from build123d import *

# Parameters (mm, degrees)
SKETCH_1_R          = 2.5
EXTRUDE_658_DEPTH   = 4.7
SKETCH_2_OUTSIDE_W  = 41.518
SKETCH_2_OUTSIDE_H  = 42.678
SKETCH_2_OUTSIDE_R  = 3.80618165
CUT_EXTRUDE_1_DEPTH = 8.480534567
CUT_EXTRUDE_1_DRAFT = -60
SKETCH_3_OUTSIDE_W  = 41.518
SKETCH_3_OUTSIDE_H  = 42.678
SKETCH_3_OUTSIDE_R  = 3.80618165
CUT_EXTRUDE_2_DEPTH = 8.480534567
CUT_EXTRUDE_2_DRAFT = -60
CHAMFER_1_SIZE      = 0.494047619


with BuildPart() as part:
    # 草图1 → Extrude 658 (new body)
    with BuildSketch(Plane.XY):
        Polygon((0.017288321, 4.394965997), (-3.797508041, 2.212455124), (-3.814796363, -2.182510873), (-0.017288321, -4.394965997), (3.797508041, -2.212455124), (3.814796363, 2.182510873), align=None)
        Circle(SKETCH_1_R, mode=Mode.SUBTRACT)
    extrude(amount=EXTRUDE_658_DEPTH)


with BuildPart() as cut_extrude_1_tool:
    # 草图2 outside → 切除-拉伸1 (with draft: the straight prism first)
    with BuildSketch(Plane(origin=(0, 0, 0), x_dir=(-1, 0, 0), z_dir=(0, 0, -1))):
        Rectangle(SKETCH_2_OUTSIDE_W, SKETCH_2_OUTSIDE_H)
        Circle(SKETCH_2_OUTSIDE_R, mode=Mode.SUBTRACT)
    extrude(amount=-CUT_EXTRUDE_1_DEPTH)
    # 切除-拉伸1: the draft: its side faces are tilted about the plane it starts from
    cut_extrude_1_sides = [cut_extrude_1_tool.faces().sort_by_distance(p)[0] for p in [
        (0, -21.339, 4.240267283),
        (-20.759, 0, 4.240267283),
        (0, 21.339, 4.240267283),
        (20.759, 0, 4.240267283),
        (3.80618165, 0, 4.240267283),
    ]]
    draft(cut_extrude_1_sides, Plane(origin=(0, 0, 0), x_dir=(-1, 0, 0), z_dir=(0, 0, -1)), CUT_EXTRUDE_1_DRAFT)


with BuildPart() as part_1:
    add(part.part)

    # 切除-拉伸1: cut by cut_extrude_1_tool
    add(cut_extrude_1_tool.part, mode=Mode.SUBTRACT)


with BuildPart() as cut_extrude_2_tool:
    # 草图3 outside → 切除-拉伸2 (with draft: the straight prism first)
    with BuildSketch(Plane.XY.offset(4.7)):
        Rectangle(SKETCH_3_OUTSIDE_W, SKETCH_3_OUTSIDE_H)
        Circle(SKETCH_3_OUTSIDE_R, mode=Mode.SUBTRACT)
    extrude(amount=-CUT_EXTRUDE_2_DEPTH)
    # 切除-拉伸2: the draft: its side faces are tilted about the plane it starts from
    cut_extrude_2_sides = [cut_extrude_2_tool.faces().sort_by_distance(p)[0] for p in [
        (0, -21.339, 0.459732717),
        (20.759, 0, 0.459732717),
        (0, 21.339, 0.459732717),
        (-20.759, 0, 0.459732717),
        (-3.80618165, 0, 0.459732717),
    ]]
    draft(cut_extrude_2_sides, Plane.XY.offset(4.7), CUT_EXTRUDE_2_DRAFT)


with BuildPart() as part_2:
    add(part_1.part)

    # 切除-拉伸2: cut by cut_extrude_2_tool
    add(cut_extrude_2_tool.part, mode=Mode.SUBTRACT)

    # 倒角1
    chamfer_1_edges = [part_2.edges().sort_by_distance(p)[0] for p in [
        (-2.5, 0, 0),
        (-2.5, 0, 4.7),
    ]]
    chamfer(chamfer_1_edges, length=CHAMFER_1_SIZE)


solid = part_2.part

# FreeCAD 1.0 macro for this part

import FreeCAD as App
import Part
import Sketcher
from FreeCAD import Vector


def edges_at(feature, points):
    """Names of the edges that pass closest to the given points."""
    edges = feature.Shape.Edges
    near = lambda p: min(range(len(edges)), key=lambda i: edges[i].distToShape(Part.Vertex(*p))[0])
    return sorted({f"Edge{near(p) + 1}" for p in points})


def faces_at(feature, points):
    """Names of the faces that lie closest to the given points."""
    faces = feature.Shape.Faces
    near = lambda p: min(range(len(faces)), key=lambda i: faces[i].distToShape(Part.Vertex(*p))[0])
    return sorted({f"Face{near(p) + 1}" for p in points})

doc = App.newDocument("Part")
body = doc.addObject("PartDesign::Body", "Body")

sketch1 = body.newObject("Sketcher::SketchObject", "Sketch")
sketch1.AttachmentSupport = (doc.getObject("XY_Plane"), [""])
sketch1.MapMode = "FlatFace"
sketch1.addGeometry(Part.LineSegment(Vector(0, 4.4, 0), Vector(-3.8, 2.2, 0)), False)
sketch1.addGeometry(Part.LineSegment(Vector(-3.8, 2.2, 0), Vector(-3.8, -2.2, 0)), False)
sketch1.addGeometry(Part.LineSegment(Vector(-3.8, -2.2, 0), Vector(0, -4.4, 0)), False)
sketch1.addGeometry(Part.LineSegment(Vector(0, -4.4, 0), Vector(3.8, -2.2, 0)), False)
sketch1.addGeometry(Part.LineSegment(Vector(3.8, -2.2, 0), Vector(3.8, 2.2, 0)), False)
sketch1.addGeometry(Part.LineSegment(Vector(3.8, 2.2, 0), Vector(0, 4.4, 0)), False)
sketch1.addGeometry(Part.Circle(Vector(0, 0, 0), Vector(0, 0, 1), 2.5), False)
sketch1.addConstraint(Sketcher.Constraint("Coincident", 0, 2, 1, 1))
sketch1.addConstraint(Sketcher.Constraint("Coincident", 1, 2, 2, 1))
sketch1.addConstraint(Sketcher.Constraint("Coincident", 2, 2, 3, 1))
sketch1.addConstraint(Sketcher.Constraint("Coincident", 3, 2, 4, 1))
sketch1.addConstraint(Sketcher.Constraint("Coincident", 4, 2, 5, 1))
sketch1.addConstraint(Sketcher.Constraint("Coincident", 5, 2, 0, 1))
sketch1.addConstraint(Sketcher.Constraint("Coincident", 6, 3, -1, 1))
sketch1.addConstraint(Sketcher.Constraint("Symmetric", 0, 2, 3, 2, -1, 1))
sketch1.addConstraint(Sketcher.Constraint("Symmetric", 1, 2, 4, 2, -1, 1))
sketch1.addConstraint(Sketcher.Constraint("Symmetric", 2, 2, 5, 2, -1, 1))
sketch1.addConstraint(Sketcher.Constraint("Equal", 0, 1))
sketch1.addConstraint(Sketcher.Constraint("Equal", 1, 2))
sketch1.addConstraint(Sketcher.Constraint("Diameter", 6, 5.0))
sketch1.addConstraint(Sketcher.Constraint("Distance", 0, 4.395))
sketch1.addConstraint(Sketcher.Constraint("DistanceX", 0, 2, -1, 1, 3.797508))
sketch1.addConstraint(Sketcher.Constraint("DistanceY", 1, 2, -1, 1, 2.182511))
sketch1.addConstraint(Sketcher.Constraint("DistanceX", 2, 2, -1, 1, 0.017288))
pad1 = body.newObject("PartDesign::Pad", "Pad")
pad1.Profile = sketch1
pad1.Length = 4.7
body2 = doc.addObject("PartDesign::Body", "Body001")

sketch2 = body2.newObject("Sketcher::SketchObject", "Sketch001")
sketch2.AttachmentSupport = (doc.getObject("XY_Plane001"), [""])
sketch2.MapMode = "FlatFace"
sketch2.addGeometry(Part.LineSegment(Vector(20.8, 21.3, 0), Vector(20.8, -21.3, 0)), False)
sketch2.addGeometry(Part.LineSegment(Vector(20.8, -21.3, 0), Vector(-20.8, -21.3, 0)), False)
sketch2.addGeometry(Part.LineSegment(Vector(-20.8, -21.3, 0), Vector(-20.8, 21.3, 0)), False)
sketch2.addGeometry(Part.LineSegment(Vector(-20.8, 21.3, 0), Vector(20.8, 21.3, 0)), False)
sketch2.addGeometry(Part.Circle(Vector(0, 0, 0), Vector(0, 0, 1), 3.8), False)
sketch2.addConstraint(Sketcher.Constraint("Coincident", 0, 2, 1, 1))
sketch2.addConstraint(Sketcher.Constraint("Coincident", 1, 2, 2, 1))
sketch2.addConstraint(Sketcher.Constraint("Coincident", 2, 2, 3, 1))
sketch2.addConstraint(Sketcher.Constraint("Coincident", 3, 2, 0, 1))
sketch2.addConstraint(Sketcher.Constraint("Vertical", 0))
sketch2.addConstraint(Sketcher.Constraint("Horizontal", 1))
sketch2.addConstraint(Sketcher.Constraint("Vertical", 2))
sketch2.addConstraint(Sketcher.Constraint("Horizontal", 3))
sketch2.addConstraint(Sketcher.Constraint("Coincident", 4, 3, -1, 1))
sketch2.addConstraint(Sketcher.Constraint("Symmetric", 0, 2, 2, 2, -1, 1))
sketch2.addConstraint(Sketcher.Constraint("DistanceX", 1, 2, 1, 1, 41.518))
sketch2.addConstraint(Sketcher.Constraint("DistanceY", 0, 2, 0, 1, 42.678))
sketch2.addConstraint(Sketcher.Constraint("Diameter", 4, 7.612363))
pad2 = body2.newObject("PartDesign::Pad", "Pad001")
pad2.Profile = sketch2
pad2.Length = 8.480535
doc.recompute()

draft = body2.newObject("PartDesign::Draft", "Draft")
draft.Base = (pad2, faces_at(pad2, [
    (0, -21.339, 4.24),
    (-20.759, 0, 4.24),
    (0, 21.339, 4.24),
    (20.759, 0, 4.24),
    (3.806, 0, 4.24),
]))
draft.NeutralPlane = (doc.getObject("XY_Plane001"), [""])
draft.Angle = 60
draft.Reversed = False
doc.recompute()

boolean = body.newObject("PartDesign::Boolean", "Boolean")
boolean.Type = "Cut"
boolean.addObjects([body2])
body3 = doc.addObject("PartDesign::Body", "Body002")

sketch3 = body3.newObject("Sketcher::SketchObject", "Sketch002")
sketch3.AttachmentSupport = (doc.getObject("XY_Plane002"), [""])
sketch3.MapMode = "FlatFace"
sketch3.AttachmentOffset = App.Placement(Vector(0, 0, 4.7), App.Rotation())
sketch3.addGeometry(Part.LineSegment(Vector(-20.8, 21.3, 0), Vector(-20.8, -21.3, 0)), False)
sketch3.addGeometry(Part.LineSegment(Vector(-20.8, -21.3, 0), Vector(20.8, -21.3, 0)), False)
sketch3.addGeometry(Part.LineSegment(Vector(20.8, -21.3, 0), Vector(20.8, 21.3, 0)), False)
sketch3.addGeometry(Part.LineSegment(Vector(20.8, 21.3, 0), Vector(-20.8, 21.3, 0)), False)
sketch3.addGeometry(Part.Circle(Vector(0, 0, 0), Vector(0, 0, 1), 3.8), False)
sketch3.addConstraint(Sketcher.Constraint("Coincident", 0, 2, 1, 1))
sketch3.addConstraint(Sketcher.Constraint("Coincident", 1, 2, 2, 1))
sketch3.addConstraint(Sketcher.Constraint("Coincident", 2, 2, 3, 1))
sketch3.addConstraint(Sketcher.Constraint("Coincident", 3, 2, 0, 1))
sketch3.addConstraint(Sketcher.Constraint("Vertical", 0))
sketch3.addConstraint(Sketcher.Constraint("Horizontal", 1))
sketch3.addConstraint(Sketcher.Constraint("Vertical", 2))
sketch3.addConstraint(Sketcher.Constraint("Horizontal", 3))
sketch3.addConstraint(Sketcher.Constraint("Coincident", 4, 3, -1, 1))
sketch3.addConstraint(Sketcher.Constraint("Symmetric", 0, 2, 2, 2, -1, 1))
sketch3.addConstraint(Sketcher.Constraint("DistanceX", 1, 1, 1, 2, 41.518))
sketch3.addConstraint(Sketcher.Constraint("DistanceY", 0, 2, 0, 1, 42.678))
sketch3.addConstraint(Sketcher.Constraint("Diameter", 4, 7.612363))
pad3 = body3.newObject("PartDesign::Pad", "Pad002")
pad3.Profile = sketch3
pad3.Length = 8.480535
pad3.Reversed = True
doc.recompute()

datumplane = body3.newObject("PartDesign::Plane", "DatumPlane")
datumplane.AttachmentSupport = (doc.getObject("XY_Plane002"), [""])
datumplane.MapMode = "FlatFace"
datumplane.AttachmentOffset = App.Placement(Vector(0, 0, 4.7), App.Rotation())
draft2 = body3.newObject("PartDesign::Draft", "Draft001")
draft2.Base = (pad3, faces_at(pad3, [
    (0, -21.339, 0.46),
    (20.759, 0, 0.46),
    (0, 21.339, 0.46),
    (-20.759, 0, 0.46),
    (-3.806, 0, 0.46),
]))
draft2.NeutralPlane = (datumplane, [""])
draft2.Angle = 60
draft2.Reversed = True
doc.recompute()

boolean2 = body.newObject("PartDesign::Boolean", "Boolean001")
boolean2.Type = "Cut"
boolean2.addObjects([body3])
doc.recompute()

chamfer = body.newObject("PartDesign::Chamfer", "Chamfer")
chamfer.Base = (boolean2, edges_at(boolean2, [(-2.5, 0, 0), (-2.5, 0, 4.7)]))
chamfer.Size = 0.494048

doc.recompute()
